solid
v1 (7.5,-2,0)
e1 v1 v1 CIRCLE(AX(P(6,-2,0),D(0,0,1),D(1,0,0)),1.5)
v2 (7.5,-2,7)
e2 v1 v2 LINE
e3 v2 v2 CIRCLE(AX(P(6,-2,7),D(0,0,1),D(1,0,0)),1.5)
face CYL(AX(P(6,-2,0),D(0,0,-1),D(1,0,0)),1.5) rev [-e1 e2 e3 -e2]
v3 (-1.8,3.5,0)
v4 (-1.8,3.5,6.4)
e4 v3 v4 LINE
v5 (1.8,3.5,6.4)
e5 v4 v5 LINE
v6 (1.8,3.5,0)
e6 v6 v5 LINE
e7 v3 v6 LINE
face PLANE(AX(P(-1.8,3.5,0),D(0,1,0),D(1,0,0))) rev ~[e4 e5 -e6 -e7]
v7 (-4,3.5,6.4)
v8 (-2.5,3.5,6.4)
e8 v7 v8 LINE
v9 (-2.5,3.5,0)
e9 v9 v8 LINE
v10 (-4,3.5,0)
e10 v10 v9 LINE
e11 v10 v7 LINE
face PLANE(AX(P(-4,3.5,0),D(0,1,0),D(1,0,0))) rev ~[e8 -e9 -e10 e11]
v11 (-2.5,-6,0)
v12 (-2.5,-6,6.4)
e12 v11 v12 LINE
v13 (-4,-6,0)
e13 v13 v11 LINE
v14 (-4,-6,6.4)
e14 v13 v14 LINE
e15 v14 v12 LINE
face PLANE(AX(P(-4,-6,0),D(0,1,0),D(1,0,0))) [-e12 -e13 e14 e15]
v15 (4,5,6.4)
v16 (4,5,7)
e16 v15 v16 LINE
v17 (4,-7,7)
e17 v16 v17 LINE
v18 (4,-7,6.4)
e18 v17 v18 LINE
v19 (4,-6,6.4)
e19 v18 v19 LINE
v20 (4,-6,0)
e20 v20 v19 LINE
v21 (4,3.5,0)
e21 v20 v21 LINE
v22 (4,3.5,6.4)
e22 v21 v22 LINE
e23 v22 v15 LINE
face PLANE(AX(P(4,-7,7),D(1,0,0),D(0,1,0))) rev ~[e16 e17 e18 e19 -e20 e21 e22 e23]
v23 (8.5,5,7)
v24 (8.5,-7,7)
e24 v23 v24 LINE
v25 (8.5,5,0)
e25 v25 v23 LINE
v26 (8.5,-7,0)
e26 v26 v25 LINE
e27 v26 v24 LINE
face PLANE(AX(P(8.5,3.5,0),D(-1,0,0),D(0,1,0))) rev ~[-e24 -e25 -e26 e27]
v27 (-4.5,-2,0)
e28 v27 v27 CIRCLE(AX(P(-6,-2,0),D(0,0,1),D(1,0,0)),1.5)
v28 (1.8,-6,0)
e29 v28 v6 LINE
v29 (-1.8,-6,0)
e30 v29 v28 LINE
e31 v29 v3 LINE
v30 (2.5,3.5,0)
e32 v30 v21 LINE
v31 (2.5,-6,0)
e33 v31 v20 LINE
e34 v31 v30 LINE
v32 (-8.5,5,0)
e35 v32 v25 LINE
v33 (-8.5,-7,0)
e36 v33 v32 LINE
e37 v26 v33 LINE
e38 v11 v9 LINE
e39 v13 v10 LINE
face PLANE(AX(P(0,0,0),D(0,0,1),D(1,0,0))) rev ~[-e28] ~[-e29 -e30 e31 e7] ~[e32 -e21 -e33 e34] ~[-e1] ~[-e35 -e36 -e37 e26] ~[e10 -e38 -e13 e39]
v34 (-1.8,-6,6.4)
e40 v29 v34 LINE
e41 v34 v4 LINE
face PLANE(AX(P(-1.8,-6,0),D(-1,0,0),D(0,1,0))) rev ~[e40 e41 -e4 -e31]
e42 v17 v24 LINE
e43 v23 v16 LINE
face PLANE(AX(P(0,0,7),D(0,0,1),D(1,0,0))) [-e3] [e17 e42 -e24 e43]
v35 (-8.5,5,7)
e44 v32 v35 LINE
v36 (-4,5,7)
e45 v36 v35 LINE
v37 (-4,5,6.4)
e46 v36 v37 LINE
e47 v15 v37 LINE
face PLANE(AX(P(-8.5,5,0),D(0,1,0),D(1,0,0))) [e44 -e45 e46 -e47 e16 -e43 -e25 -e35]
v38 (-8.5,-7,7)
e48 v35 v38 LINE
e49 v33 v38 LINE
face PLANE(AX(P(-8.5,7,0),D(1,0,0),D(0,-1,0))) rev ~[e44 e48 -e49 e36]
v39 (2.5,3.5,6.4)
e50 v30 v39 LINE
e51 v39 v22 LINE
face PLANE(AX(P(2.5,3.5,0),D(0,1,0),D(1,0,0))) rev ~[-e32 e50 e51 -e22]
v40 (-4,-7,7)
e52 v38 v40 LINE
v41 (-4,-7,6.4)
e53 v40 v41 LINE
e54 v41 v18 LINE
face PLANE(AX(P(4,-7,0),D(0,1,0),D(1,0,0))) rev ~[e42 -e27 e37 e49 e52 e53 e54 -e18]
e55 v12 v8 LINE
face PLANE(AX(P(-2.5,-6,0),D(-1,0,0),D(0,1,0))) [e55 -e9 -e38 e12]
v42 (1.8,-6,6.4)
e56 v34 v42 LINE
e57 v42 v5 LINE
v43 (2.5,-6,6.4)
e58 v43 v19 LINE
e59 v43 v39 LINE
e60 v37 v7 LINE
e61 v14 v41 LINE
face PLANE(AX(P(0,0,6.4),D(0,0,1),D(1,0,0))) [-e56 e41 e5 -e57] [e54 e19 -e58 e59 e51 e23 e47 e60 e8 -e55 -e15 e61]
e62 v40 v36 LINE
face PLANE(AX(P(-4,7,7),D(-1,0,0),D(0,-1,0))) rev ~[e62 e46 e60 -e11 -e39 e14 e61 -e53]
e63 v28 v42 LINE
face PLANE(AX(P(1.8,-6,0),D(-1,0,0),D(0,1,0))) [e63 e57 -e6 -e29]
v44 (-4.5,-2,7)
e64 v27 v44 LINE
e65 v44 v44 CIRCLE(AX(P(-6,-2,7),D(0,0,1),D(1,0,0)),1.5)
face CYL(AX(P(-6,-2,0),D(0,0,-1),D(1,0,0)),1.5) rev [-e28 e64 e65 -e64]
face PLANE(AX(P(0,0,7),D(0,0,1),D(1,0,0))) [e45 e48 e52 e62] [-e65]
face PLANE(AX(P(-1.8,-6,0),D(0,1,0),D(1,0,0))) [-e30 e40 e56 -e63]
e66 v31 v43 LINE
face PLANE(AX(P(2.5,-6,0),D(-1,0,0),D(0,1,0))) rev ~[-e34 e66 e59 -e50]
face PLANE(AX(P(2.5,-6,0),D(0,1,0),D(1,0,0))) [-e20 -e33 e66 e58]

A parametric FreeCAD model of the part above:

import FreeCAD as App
import Part
import Sketcher
from FreeCAD import Vector

doc = App.newDocument("Part")
body = doc.addObject("PartDesign::Body", "Body")

# Sketch on XY plane
sketch1 = body.newObject("Sketcher::SketchObject", "Sketch")
sketch1.AttachmentSupport = (doc.getObject("XY_Plane"), [""])
sketch1.MapMode = "FlatFace"
sketch1.addGeometry(Part.LineSegment(Vector(8.5, 7, 0), Vector(-8.5, 7, 0)), False)
sketch1.addGeometry(Part.LineSegment(Vector(-8.5, 7, 0), Vector(-8.5, -7, 0)), False)
sketch1.addGeometry(Part.LineSegment(Vector(-8.5, -7, 0), Vector(8.5, -7, 0)), False)
sketch1.addGeometry(Part.LineSegment(Vector(8.5, -7, 0), Vector(8.5, 7, 0)), False)
sketch1.addGeometry(Part.LineSegment(Vector(4, 3.5, 0), Vector(4, -6, 0)), False)
sketch1.addGeometry(Part.LineSegment(Vector(4, -6, 0), Vector(2.5, -6, 0)), False)
sketch1.addGeometry(Part.LineSegment(Vector(2.5, -6, 0), Vector(2.5, 3.5, 0)), False)
sketch1.addGeometry(Part.LineSegment(Vector(2.5, 3.5, 0), Vector(4, 3.5, 0)), False)
sketch1.addGeometry(Part.Circle(Vector(6, -2, 0), Vector(0, 0, 1), 1.5), False)
sketch1.addGeometry(Part.LineSegment(Vector(-1.8, 3.5, 0), Vector(1.8, 3.5, 0)), False)
sketch1.addGeometry(Part.LineSegment(Vector(1.8, 3.5, 0), Vector(1.8, -6, 0)), False)
sketch1.addGeometry(Part.LineSegment(Vector(1.8, -6, 0), Vector(-1.8, -6, 0)), False)
sketch1.addGeometry(Part.LineSegment(Vector(-1.8, -6, 0), Vector(-1.8, 3.5, 0)), False)
sketch1.addGeometry(Part.LineSegment(Vector(-4, 3.5, 0), Vector(-2.5, 3.5, 0)), False)
sketch1.addGeometry(Part.LineSegment(Vector(-2.5, 3.5, 0), Vector(-2.5, -6, 0)), False)
sketch1.addGeometry(Part.LineSegment(Vector(-2.5, -6, 0), Vector(-4, -6, 0)), False)
sketch1.addGeometry(Part.LineSegment(Vector(-4, -6, 0), Vector(-4, 3.5, 0)), False)
sketch1.addGeometry(Part.Circle(Vector(-6, -2, 0), Vector(0, 0, 1), 1.5), False)
sketch1.addConstraint(Sketcher.Constraint("Coincident", 0, 2, 1, 1))
sketch1.addConstraint(Sketcher.Constraint("Coincident", 1, 2, 2, 1))
sketch1.addConstraint(Sketcher.Constraint("Coincident", 2, 2, 3, 1))
sketch1.addConstraint(Sketcher.Constraint("Coincident", 3, 2, 0, 1))
sketch1.addConstraint(Sketcher.Constraint("Coincident", 4, 2, 5, 1))
sketch1.addConstraint(Sketcher.Constraint("Coincident", 5, 2, 6, 1))
sketch1.addConstraint(Sketcher.Constraint("Coincident", 6, 2, 7, 1))
sketch1.addConstraint(Sketcher.Constraint("Coincident", 7, 2, 4, 1))
sketch1.addConstraint(Sketcher.Constraint("Coincident", 9, 2, 10, 1))
sketch1.addConstraint(Sketcher.Constraint("Coincident", 10, 2, 11, 1))
sketch1.addConstraint(Sketcher.Constraint("Coincident", 11, 2, 12, 1))
sketch1.addConstraint(Sketcher.Constraint("Coincident", 12, 2, 9, 1))
sketch1.addConstraint(Sketcher.Constraint("Coincident", 13, 2, 14, 1))
sketch1.addConstraint(Sketcher.Constraint("Coincident", 14, 2, 15, 1))
sketch1.addConstraint(Sketcher.Constraint("Coincident", 15, 2, 16, 1))
sketch1.addConstraint(Sketcher.Constraint("Coincident", 16, 2, 13, 1))
sketch1.addConstraint(Sketcher.Constraint("Horizontal", 0))
sketch1.addConstraint(Sketcher.Constraint("Vertical", 1))
sketch1.addConstraint(Sketcher.Constraint("Horizontal", 2))
sketch1.addConstraint(Sketcher.Constraint("Vertical", 3))
sketch1.addConstraint(Sketcher.Constraint("Vertical", 4))
sketch1.addConstraint(Sketcher.Constraint("Horizontal", 5))
sketch1.addConstraint(Sketcher.Constraint("Vertical", 6))
sketch1.addConstraint(Sketcher.Constraint("Horizontal", 7))
sketch1.addConstraint(Sketcher.Constraint("Horizontal", 9))
sketch1.addConstraint(Sketcher.Constraint("Vertical", 10))
sketch1.addConstraint(Sketcher.Constraint("Horizontal", 11))
sketch1.addConstraint(Sketcher.Constraint("Vertical", 12))
sketch1.addConstraint(Sketcher.Constraint("Horizontal", 13))
sketch1.addConstraint(Sketcher.Constraint("Vertical", 14))
sketch1.addConstraint(Sketcher.Constraint("Horizontal", 15))
sketch1.addConstraint(Sketcher.Constraint("Vertical", 16))
sketch1.addConstraint(Sketcher.Constraint("Equal", 8, 17))
sketch1.addConstraint(Sketcher.Constraint("Symmetric", 0, 2, 2, 2, -1, 1))
sketch1.addConstraint(Sketcher.Constraint("Symmetric", 8, 3, 17, 3, -2))
sketch1.addConstraint(Sketcher.Constraint("Symmetric", 6, 2, 13, 2, -2))
sketch1.addConstraint(Sketcher.Constraint("Symmetric", 4, 2, 15, 2, -2))
sketch1.addConstraint(Sketcher.Constraint("Horizontal", 7, 2, 9, 2))
sketch1.addConstraint(Sketcher.Constraint("Horizontal", 5, 2, 10, 2))
sketch1.addConstraint(Sketcher.Constraint("Diameter", 8, 3.0))
sketch1.addConstraint(Sketcher.Constraint("DistanceX", 0, 2, 0, 1, 17.0))
sketch1.addConstraint(Sketcher.Constraint("DistanceY", 1, 2, 1, 1, 14.0))
sketch1.addConstraint(Sketcher.Constraint("DistanceX", 5, 2, 5, 1, 1.5))
sketch1.addConstraint(Sketcher.Constraint("DistanceY", 1, 2, 17, 3, 5.0))
sketch1.addConstraint(Sketcher.Constraint("DistanceY", 2, 2, 4, 2, 1.0))
sketch1.addConstraint(Sketcher.Constraint("DistanceX", 13, 2, 6, 2, 5.0))
sketch1.addConstraint(Sketcher.Constraint("DistanceY", -1, 1, 6, 2, 3.5))
sketch1.addConstraint(Sketcher.Constraint("DistanceX", 5, 2, 8, 3, 3.5))
sketch1.addConstraint(Sketcher.Constraint("DistanceX", 9, 2, 6, 2, 0.7))
sketch1.addConstraint(Sketcher.Constraint("DistanceX", 13, 2, 12, 2, 0.7))
pad1 = body.newObject("PartDesign::Pad", "Pad")
pad1.Profile = sketch1
pad1.Length = 7

# Sketch on XY plane
sketch2 = body.newObject("Sketcher::SketchObject", "Sketch001")
sketch2.AttachmentSupport = (doc.getObject("XY_Plane"), [""])
sketch2.MapMode = "FlatFace"
sketch2.AttachmentOffset = App.Placement(Vector(0, 0, 7), App.Rotation())
sketch2.addGeometry(Part.LineSegment(Vector(4, -7, 0), Vector(4, 7, 0)), False)
sketch2.addGeometry(Part.LineSegment(Vector(4, 7, 0), Vector(-4, 7, 0)), False)
sketch2.addGeometry(Part.LineSegment(Vector(-4, 7, 0), Vector(-4, -7, 0)), False)
sketch2.addGeometry(Part.LineSegment(Vector(-4, -7, 0), Vector(4, -7, 0)), False)
sketch2.addConstraint(Sketcher.Constraint("Coincident", 0, 2, 1, 1))
sketch2.addConstraint(Sketcher.Constraint("Coincident", 1, 2, 2, 1))
sketch2.addConstraint(Sketcher.Constraint("Coincident", 2, 2, 3, 1))
sketch2.addConstraint(Sketcher.Constraint("Coincident", 3, 2, 0, 1))
sketch2.addConstraint(Sketcher.Constraint("Vertical", 0))
sketch2.addConstraint(Sketcher.Constraint("Horizontal", 1))
sketch2.addConstraint(Sketcher.Constraint("Vertical", 2))
sketch2.addConstraint(Sketcher.Constraint("Horizontal", 3))
sketch2.addConstraint(Sketcher.Constraint("Symmetric", 0, 2, 2, 2, -1, 1))
sketch2.addConstraint(Sketcher.Constraint("DistanceX", 1, 2, 1, 1, 8.0))
sketch2.addConstraint(Sketcher.Constraint("DistanceY", 0, 1, 0, 2, 14.0))
pocket1 = body.newObject("PartDesign::Pocket", "Pocket")
pocket1.Profile = sketch2
pocket1.Length = 0.6

# Sketch on XZ plane
sketch3 = body.newObject("Sketcher::SketchObject", "Sketch002")
sketch3.AttachmentSupport = (doc.getObject("XZ_Plane"), [""])
sketch3.MapMode = "FlatFace"
sketch3.AttachmentOffset = App.Placement(Vector(0, 0, -7), App.Rotation())
sketch3.addGeometry(Part.LineSegment(Vector(8.5, 0, 0), Vector(-8.5, 0, 0)), False)
sketch3.addGeometry(Part.LineSegment(Vector(-8.5, 0, 0), Vector(-8.5, 7, 0)), False)
sketch3.addGeometry(Part.LineSegment(Vector(-8.5, 7, 0), Vector(8.5, 7, 0)), False)
sketch3.addGeometry(Part.LineSegment(Vector(8.5, 7, 0), Vector(8.5, 0, 0)), False)
sketch3.addConstraint(Sketcher.Constraint("Coincident", 0, 2, 1, 1))
sketch3.addConstraint(Sketcher.Constraint("Coincident", 1, 2, 2, 1))
sketch3.addConstraint(Sketcher.Constraint("Coincident", 2, 2, 3, 1))
sketch3.addConstraint(Sketcher.Constraint("Coincident", 3, 2, 0, 1))
sketch3.addConstraint(Sketcher.Constraint("Horizontal", 0))
sketch3.addConstraint(Sketcher.Constraint("Vertical", 1))
sketch3.addConstraint(Sketcher.Constraint("Horizontal", 2))
sketch3.addConstraint(Sketcher.Constraint("Vertical", 3))
sketch3.addConstraint(Sketcher.Constraint("Symmetric", 0, 2, 3, 2, -1, 1))
sketch3.addConstraint(Sketcher.Constraint("DistanceX", 0, 2, 0, 1, 17.0))
sketch3.addConstraint(Sketcher.Constraint("DistanceY", 1, 1, 1, 2, 7.0))
pocket2 = body.newObject("PartDesign::Pocket", "Pocket001")
pocket2.Profile = sketch3
pocket2.Length = 2
pocket2.Reversed = True

doc.recompute()
